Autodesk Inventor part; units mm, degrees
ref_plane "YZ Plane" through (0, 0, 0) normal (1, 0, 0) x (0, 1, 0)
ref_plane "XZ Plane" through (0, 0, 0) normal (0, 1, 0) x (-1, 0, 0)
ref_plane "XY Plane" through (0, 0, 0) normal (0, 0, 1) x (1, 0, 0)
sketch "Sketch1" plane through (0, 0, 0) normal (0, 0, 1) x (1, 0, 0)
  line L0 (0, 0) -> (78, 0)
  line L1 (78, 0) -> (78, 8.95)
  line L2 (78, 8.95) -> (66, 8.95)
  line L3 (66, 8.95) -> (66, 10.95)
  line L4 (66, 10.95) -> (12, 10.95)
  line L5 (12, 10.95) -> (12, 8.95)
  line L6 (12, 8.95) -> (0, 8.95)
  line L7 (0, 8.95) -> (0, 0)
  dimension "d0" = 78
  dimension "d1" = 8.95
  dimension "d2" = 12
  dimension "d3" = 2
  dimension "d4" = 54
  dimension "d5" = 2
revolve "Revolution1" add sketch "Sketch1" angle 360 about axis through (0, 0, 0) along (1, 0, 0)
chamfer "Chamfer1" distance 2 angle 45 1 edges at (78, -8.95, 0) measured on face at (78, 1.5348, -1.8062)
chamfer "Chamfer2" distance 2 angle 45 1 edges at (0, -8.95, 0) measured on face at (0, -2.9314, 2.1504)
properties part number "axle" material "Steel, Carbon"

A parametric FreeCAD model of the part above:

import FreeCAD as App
import Part
import Sketcher
Q = App.Units.Quantity


def edges_at(feature, points):
    """Names of the edges that pass closest to the given points."""
    edges = feature.Shape.Edges
    near = lambda p: min(range(len(edges)), key=lambda i: edges[i].distToShape(Part.Vertex(*p))[0])
    return sorted({f"Edge{near(p) + 1}" for p in points})


def add_polygon(sketch, points):
    """Adds a closed chain of lines whose ends are joined by coincident constraints."""
    first, n = sketch.GeometryCount, len(points)
    for a, b in zip(points, points[1:] + points[:1]):
        sketch.addGeometry(Part.LineSegment(App.Vector(*a, 0), App.Vector(*b, 0)), False)
    for i in range(n):
        sketch.addConstraint(Sketcher.Constraint("Coincident", first + i, 2, first + (i + 1) % n, 1))

doc = App.newDocument("Part")
body = doc.addObject("PartDesign::Body", "Body")

sketch1 = body.newObject("Sketcher::SketchObject", "Sketch")
sketch1.AttachmentSupport = (doc.getObject("XY_Plane"), [""])
sketch1.MapMode = "FlatFace"
add_polygon(sketch1, [(0, 8.9), (0, 0), (78, 0), (78, 8.9), (66, 8.9), (66, 10.9), (12, 10.9), (12, 8.9)])
sketch1.addConstraint([
    Sketcher.Constraint("Vertical", 0),
    Sketcher.Constraint("Horizontal", 1),
    Sketcher.Constraint("Vertical", 2),
    Sketcher.Constraint("Horizontal", 3),
    Sketcher.Constraint("Vertical", 4),
    Sketcher.Constraint("Horizontal", 5),
    Sketcher.Constraint("Vertical", 6),
    Sketcher.Constraint("Horizontal", 7),
    Sketcher.Constraint("Coincident", 0, 2, -1, 1),
    Sketcher.Constraint("Horizontal", 3, 2, 6, 2),
    Sketcher.Constraint("Equal", 3, 7),
    Sketcher.Constraint("DistanceX", 1, 1, 1, 2, Q("78 mm")),
    Sketcher.Constraint("DistanceX", 3, 2, 3, 1, Q("12 mm")),
    Sketcher.Constraint("DistanceY", 4, 1, 4, 2, Q("2 mm")),
    Sketcher.Constraint("DistanceY", 0, 2, 0, 1, Q("8.95 mm")),
])
revolution = body.newObject("PartDesign::Revolution", "Revolution")
revolution.Profile = sketch1
revolution.ReferenceAxis = (sketch1, ["H_Axis"])
revolution.Angle = 360
doc.recompute()

chamfer = body.newObject("PartDesign::Chamfer", "Chamfer")
chamfer.Base = (revolution, edges_at(revolution, [(78, -8.95, 0)]))
chamfer.Size = 2
doc.recompute()

chamfer2 = body.newObject("PartDesign::Chamfer", "Chamfer001")
chamfer2.Base = (chamfer, edges_at(chamfer, [(0, -8.95, 0)]))
chamfer2.Size = 2

doc.recompute()
